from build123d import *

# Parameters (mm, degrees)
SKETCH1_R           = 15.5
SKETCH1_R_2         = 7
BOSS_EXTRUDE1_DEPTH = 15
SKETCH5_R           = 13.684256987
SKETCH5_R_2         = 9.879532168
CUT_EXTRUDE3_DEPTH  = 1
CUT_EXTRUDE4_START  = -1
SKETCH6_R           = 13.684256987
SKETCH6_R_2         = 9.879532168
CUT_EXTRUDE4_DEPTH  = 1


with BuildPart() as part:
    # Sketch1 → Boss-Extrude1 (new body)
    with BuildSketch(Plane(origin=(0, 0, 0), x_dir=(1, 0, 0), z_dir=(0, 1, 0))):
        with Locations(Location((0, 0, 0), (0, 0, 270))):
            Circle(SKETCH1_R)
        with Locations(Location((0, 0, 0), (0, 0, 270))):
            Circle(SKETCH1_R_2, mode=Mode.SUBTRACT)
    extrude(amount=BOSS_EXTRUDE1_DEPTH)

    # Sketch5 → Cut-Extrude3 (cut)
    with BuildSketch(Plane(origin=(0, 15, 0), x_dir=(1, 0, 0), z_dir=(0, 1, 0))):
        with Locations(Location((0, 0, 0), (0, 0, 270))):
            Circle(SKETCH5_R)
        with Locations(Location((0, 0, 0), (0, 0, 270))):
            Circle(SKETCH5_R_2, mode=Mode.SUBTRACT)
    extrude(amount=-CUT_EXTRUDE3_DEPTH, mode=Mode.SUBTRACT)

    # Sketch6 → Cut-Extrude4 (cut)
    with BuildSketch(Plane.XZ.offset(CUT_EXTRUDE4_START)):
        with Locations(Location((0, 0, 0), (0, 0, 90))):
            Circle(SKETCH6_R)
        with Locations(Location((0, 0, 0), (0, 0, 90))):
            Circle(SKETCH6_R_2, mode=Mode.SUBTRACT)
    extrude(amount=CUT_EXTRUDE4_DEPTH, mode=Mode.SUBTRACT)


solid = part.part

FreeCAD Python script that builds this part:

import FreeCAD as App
import Part
import Sketcher

doc = App.newDocument("Part")
body = doc.addObject("PartDesign::Body", "Body")

sketch1 = body.newObject("Sketcher::SketchObject", "Sketch")
sketch1.AttachmentSupport = (doc.getObject("XZ_Plane"), [""])
sketch1.MapMode = "FlatFace"
sketch1.addGeometry(Part.Circle(App.Vector(0, 0, 0), App.Vector(0, 0, 1), 16), False)
sketch1.addGeometry(Part.Circle(App.Vector(0, 0, 0), App.Vector(0, 0, 1), 7), False)
sketch1.addConstraint(Sketcher.Constraint("Coincident", 0, 3, -1, 1))
sketch1.addConstraint(Sketcher.Constraint("Coincident", 1, 3, -1, 1))
sketch1.addConstraint(Sketcher.Constraint("Diameter", 0, 31.0))
sketch1.addConstraint(Sketcher.Constraint("Diameter", 1, 14.0))
pad1 = body.newObject("PartDesign::Pad", "Pad")
pad1.Profile = sketch1
pad1.Length = 15
pad1.Reversed = True

sketch2 = body.newObject("Sketcher::SketchObject", "Sketch001")
sketch2.AttachmentSupport = (doc.getObject("XZ_Plane"), [""])
sketch2.MapMode = "FlatFace"
sketch2.AttachmentOffset = App.Placement(App.Vector(0, 0, -15), App.Rotation())
sketch2.addGeometry(Part.Circle(App.Vector(0, 0, 0), App.Vector(0, 0, 1), 14), False)
sketch2.addGeometry(Part.Circle(App.Vector(0, 0, 0), App.Vector(0, 0, 1), 10), False)
sketch2.addConstraint(Sketcher.Constraint("Coincident", 0, 3, -1, 1))
sketch2.addConstraint(Sketcher.Constraint("Coincident", 1, 3, -1, 1))
sketch2.addConstraint(Sketcher.Constraint("Diameter", 0, 27.368514))
sketch2.addConstraint(Sketcher.Constraint("Diameter", 1, 19.759064))
pocket1 = body.newObject("PartDesign::Pocket", "Pocket")
pocket1.Profile = sketch2
pocket1.Length = 1
pocket1.Reversed = True

sketch3 = body.newObject("Sketcher::SketchObject", "Sketch002")
sketch3.AttachmentSupport = (doc.getObject("XZ_Plane"), [""])
sketch3.MapMode = "FlatFace"
sketch3.AttachmentOffset = App.Placement(App.Vector(0, 0, -1), App.Rotation())
sketch3.addGeometry(Part.Circle(App.Vector(0, 0, 0), App.Vector(0, 0, 1), 14), False)
sketch3.addGeometry(Part.Circle(App.Vector(0, 0, 0), App.Vector(0, 0, 1), 10), False)
sketch3.addConstraint(Sketcher.Constraint("Coincident", 0, 3, -1, 1))
sketch3.addConstraint(Sketcher.Constraint("Coincident", 1, 3, -1, 1))
sketch3.addConstraint(Sketcher.Constraint("Diameter", 0, 27.368514))
sketch3.addConstraint(Sketcher.Constraint("Diameter", 1, 19.759064))
pocket2 = body.newObject("PartDesign::Pocket", "Pocket001")
pocket2.Profile = sketch3
pocket2.Length = 1
pocket2.Reversed = True

doc.recompute()
